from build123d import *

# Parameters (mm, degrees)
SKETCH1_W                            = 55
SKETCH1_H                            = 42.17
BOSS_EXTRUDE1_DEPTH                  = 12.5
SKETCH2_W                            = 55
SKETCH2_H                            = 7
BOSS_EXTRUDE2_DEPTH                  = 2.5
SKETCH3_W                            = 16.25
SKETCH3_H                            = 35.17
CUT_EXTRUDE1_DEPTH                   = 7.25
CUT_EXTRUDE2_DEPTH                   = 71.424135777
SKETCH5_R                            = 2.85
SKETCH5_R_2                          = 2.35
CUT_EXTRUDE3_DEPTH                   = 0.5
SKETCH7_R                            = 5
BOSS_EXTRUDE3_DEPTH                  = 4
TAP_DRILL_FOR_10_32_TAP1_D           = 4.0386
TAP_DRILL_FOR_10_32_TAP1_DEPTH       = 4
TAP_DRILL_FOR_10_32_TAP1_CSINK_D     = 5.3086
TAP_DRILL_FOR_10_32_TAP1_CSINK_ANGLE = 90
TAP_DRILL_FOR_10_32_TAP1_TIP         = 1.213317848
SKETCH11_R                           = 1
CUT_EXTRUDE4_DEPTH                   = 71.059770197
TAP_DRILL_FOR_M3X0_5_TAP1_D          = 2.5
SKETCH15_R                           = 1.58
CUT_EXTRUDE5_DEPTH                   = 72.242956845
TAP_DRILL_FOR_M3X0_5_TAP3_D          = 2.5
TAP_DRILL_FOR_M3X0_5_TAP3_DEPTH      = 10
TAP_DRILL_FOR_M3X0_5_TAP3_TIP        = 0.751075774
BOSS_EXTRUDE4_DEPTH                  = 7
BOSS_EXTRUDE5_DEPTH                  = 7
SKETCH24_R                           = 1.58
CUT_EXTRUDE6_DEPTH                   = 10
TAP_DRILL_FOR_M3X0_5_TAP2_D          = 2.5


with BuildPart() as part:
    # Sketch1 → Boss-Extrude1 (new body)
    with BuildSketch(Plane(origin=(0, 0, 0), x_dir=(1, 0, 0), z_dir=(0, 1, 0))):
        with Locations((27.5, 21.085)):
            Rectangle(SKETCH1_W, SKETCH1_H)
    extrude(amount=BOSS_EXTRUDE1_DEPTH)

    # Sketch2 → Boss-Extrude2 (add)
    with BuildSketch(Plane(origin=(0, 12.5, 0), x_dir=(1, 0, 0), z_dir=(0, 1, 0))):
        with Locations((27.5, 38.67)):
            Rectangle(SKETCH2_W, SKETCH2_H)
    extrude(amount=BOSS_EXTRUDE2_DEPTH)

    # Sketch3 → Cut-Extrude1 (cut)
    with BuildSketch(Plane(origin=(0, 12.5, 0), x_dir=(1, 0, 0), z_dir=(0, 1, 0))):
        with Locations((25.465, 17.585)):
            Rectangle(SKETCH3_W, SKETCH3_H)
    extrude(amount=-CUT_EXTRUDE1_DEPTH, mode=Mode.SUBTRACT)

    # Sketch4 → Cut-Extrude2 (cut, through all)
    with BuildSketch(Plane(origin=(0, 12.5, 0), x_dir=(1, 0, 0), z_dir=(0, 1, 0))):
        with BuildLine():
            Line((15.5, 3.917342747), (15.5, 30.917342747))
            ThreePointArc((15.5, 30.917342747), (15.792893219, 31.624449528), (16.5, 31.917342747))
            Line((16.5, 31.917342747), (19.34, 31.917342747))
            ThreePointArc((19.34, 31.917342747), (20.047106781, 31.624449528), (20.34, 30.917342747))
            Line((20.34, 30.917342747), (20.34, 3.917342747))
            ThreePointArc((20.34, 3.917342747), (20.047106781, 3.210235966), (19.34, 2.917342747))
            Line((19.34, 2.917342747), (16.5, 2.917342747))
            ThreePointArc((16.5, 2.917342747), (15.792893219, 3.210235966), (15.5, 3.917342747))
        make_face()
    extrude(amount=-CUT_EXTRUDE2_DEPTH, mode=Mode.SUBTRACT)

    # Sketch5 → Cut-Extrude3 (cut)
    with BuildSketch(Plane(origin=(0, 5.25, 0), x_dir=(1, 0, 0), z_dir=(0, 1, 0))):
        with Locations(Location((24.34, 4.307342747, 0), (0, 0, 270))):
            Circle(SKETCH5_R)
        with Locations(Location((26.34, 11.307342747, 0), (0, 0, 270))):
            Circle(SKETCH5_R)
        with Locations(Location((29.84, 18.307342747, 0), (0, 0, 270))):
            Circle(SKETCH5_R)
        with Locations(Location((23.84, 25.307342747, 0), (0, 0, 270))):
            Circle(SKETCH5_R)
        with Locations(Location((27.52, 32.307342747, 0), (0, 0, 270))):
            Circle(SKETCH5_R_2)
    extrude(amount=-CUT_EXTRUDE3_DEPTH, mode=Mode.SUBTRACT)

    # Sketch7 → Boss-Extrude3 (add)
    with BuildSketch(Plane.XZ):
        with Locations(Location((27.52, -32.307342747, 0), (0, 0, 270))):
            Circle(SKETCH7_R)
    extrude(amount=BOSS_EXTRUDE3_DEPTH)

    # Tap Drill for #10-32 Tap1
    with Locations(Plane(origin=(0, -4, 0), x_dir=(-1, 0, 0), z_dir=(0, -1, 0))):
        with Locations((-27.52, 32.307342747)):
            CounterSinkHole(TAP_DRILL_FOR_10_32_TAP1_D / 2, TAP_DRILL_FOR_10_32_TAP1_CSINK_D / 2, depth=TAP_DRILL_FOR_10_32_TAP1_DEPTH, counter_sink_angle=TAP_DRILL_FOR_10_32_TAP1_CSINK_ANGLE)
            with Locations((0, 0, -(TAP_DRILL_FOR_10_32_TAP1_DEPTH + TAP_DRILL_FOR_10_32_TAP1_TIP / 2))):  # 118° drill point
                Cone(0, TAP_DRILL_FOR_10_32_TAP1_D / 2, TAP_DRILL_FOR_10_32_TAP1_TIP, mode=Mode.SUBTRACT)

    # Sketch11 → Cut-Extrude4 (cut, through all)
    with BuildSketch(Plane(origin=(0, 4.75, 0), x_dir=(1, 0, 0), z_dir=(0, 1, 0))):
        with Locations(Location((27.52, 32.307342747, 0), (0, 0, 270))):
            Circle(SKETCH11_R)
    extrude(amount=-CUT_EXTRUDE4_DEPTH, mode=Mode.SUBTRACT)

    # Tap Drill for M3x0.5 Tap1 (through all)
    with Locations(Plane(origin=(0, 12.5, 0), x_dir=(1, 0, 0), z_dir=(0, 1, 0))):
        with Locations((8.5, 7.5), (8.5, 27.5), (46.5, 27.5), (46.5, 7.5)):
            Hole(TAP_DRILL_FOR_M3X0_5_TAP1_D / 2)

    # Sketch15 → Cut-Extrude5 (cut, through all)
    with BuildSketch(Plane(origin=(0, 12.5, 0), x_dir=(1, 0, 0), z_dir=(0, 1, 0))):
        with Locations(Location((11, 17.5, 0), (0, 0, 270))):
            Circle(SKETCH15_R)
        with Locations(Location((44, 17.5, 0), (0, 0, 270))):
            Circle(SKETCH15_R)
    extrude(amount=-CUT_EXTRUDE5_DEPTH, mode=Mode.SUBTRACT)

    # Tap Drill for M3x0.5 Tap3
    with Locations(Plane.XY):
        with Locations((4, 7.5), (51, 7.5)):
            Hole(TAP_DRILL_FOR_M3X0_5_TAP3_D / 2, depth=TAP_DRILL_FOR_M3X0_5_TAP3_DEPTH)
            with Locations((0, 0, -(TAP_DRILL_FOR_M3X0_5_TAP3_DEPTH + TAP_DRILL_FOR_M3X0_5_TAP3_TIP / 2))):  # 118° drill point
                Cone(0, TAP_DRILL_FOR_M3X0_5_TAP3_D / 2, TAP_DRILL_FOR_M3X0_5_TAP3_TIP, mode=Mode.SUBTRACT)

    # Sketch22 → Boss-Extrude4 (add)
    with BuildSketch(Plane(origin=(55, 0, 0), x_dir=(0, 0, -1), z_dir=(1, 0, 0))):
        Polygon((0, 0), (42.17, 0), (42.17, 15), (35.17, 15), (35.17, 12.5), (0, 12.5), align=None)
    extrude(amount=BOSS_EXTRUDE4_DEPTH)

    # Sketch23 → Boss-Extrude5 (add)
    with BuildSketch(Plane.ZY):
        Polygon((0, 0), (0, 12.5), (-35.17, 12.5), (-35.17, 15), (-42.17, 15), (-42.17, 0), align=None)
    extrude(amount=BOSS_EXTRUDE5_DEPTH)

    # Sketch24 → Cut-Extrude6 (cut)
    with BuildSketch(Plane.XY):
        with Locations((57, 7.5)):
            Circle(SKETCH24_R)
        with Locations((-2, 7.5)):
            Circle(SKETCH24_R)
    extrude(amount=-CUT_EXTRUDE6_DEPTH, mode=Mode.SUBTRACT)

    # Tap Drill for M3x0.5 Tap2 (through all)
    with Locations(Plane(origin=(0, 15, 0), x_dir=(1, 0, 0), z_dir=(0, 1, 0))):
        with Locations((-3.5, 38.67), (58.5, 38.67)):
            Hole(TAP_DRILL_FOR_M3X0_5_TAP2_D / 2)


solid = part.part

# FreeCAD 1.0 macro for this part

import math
import FreeCAD as App
import Part
import Sketcher

V = App.Vector
Q = App.Units.Quantity


def add_polygon(sketch, points):
    """Adds a closed chain of lines whose ends are joined by coincident constraints."""
    first, n = sketch.GeometryCount, len(points)
    for a, b in zip(points, points[1:] + points[:1]):
        sketch.addGeometry(Part.LineSegment(App.Vector(*a, 0), App.Vector(*b, 0)), False)
    for i in range(n):
        sketch.addConstraint(Sketcher.Constraint("Coincident", first + i, 2, first + (i + 1) % n, 1))

doc = App.newDocument("Part")
body = doc.addObject("PartDesign::Body", "Body")

# Sketch on XZ plane
sketch1 = body.newObject("Sketcher::SketchObject", "Sketch")
sketch1.AttachmentSupport = (doc.getObject("XZ_Plane"), [""])
sketch1.MapMode = "FlatFace"
add_polygon(sketch1, [(0, -42.17), (0, 0), (55, 0), (55, -42.17)])  # lines 0-3
sketch1.addConstraint(Sketcher.Constraint("Vertical", 0))
sketch1.addConstraint(Sketcher.Constraint("Horizontal", 1))
sketch1.addConstraint(Sketcher.Constraint("Vertical", 2))
sketch1.addConstraint(Sketcher.Constraint("Horizontal", 3))
sketch1.addConstraint(Sketcher.Constraint("Coincident", 0, 2, -1, 1))
sketch1.addConstraint(Sketcher.Constraint("DistanceX", 1, 1, 1, 2, Q("55 mm")))
sketch1.addConstraint(Sketcher.Constraint("DistanceY", 0, 1, 0, 2, Q("42.17 mm")))
pad1 = body.newObject("PartDesign::Pad", "Pad")
pad1.Profile = sketch1
pad1.Length = 12.5
pad1.Reversed = True

# Sketch on XZ plane
sketch2 = body.newObject("Sketcher::SketchObject", "Sketch001")
sketch2.AttachmentSupport = (doc.getObject("XZ_Plane"), [""])
sketch2.MapMode = "FlatFace"
sketch2.AttachmentOffset = App.Placement(V(0, 0, -12.5), App.Rotation())
add_polygon(sketch2, [(0, -42.17), (0, -35.17), (55, -35.17), (55, -42.17)])  # lines 0-3
sketch2.addConstraint(Sketcher.Constraint("Vertical", 0))
sketch2.addConstraint(Sketcher.Constraint("Horizontal", 1))
sketch2.addConstraint(Sketcher.Constraint("Vertical", 2))
sketch2.addConstraint(Sketcher.Constraint("Horizontal", 3))
sketch2.addConstraint(Sketcher.Constraint("PointOnObject", 0, 2, -2))
sketch2.addConstraint(Sketcher.Constraint("DistanceX", 1, 1, 1, 2, Q("55 mm")))
sketch2.addConstraint(Sketcher.Constraint("DistanceY", 0, 1, 0, 2, Q("7 mm")))
sketch2.addConstraint(Sketcher.Constraint("DistanceY", 0, 2, -1, 1, Q("35.17 mm")))
pad2 = body.newObject("PartDesign::Pad", "Pad001")
pad2.Profile = sketch2
pad2.Length = 2.5
pad2.Reversed = True

# Sketch on XZ plane
sketch3 = body.newObject("Sketcher::SketchObject", "Sketch002")
sketch3.AttachmentSupport = (doc.getObject("XZ_Plane"), [""])
sketch3.MapMode = "FlatFace"
sketch3.AttachmentOffset = App.Placement(V(0, 0, -12.5), App.Rotation())
add_polygon(sketch3, [(17.34, -35.17), (17.34, 0), (33.59, 0), (33.59, -35.17)])  # lines 0-3
sketch3.addConstraint(Sketcher.Constraint("Vertical", 0))
sketch3.addConstraint(Sketcher.Constraint("Horizontal", 1))
sketch3.addConstraint(Sketcher.Constraint("Vertical", 2))
sketch3.addConstraint(Sketcher.Constraint("Horizontal", 3))
sketch3.addConstraint(Sketcher.Constraint("PointOnObject", 0, 2, -1))
sketch3.addConstraint(Sketcher.Constraint("DistanceX", 1, 1, 1, 2, Q("16.25 mm")))
sketch3.addConstraint(Sketcher.Constraint("DistanceY", 0, 1, 0, 2, Q("35.17 mm")))
sketch3.addConstraint(Sketcher.Constraint("DistanceX", -1, 1, 0, 2, Q("17.34 mm")))
pocket1 = body.newObject("PartDesign::Pocket", "Pocket")
pocket1.Profile = sketch3
pocket1.Length = 7.25
pocket1.Reversed = True

# Sketch on XZ plane
sketch4 = body.newObject("Sketcher::SketchObject", "Sketch003")
sketch4.AttachmentSupport = (doc.getObject("XZ_Plane"), [""])
sketch4.MapMode = "FlatFace"
sketch4.AttachmentOffset = App.Placement(V(0, 0, -12.5), App.Rotation())
sketch4.addGeometry(Part.LineSegment(V(15.5, -30.917343, 0), V(15.5, -3.917343, 0)), False)
sketch4.addGeometry(Part.ArcOfCircle(Part.Circle(V(16.5, -3.917343, 0), V(0, 0, 1), 1), math.radians(90), math.radians(180)), False)
sketch4.addGeometry(Part.LineSegment(V(16.5, -2.917343, 0), V(19.34, -2.917343, 0)), False)
sketch4.addGeometry(Part.ArcOfCircle(Part.Circle(V(19.34, -3.917343, 0), V(0, 0, 1), 1), math.radians(0), math.radians(90)), False)
sketch4.addGeometry(Part.LineSegment(V(20.34, -3.917343, 0), V(20.34, -30.917343, 0)), False)
sketch4.addGeometry(Part.ArcOfCircle(Part.Circle(V(19.34, -30.917343, 0), V(0, 0, 1), 1), math.radians(-90), math.radians(0)), False)
sketch4.addGeometry(Part.LineSegment(V(19.34, -31.917343, 0), V(16.5, -31.917343, 0)), False)
sketch4.addGeometry(Part.ArcOfCircle(Part.Circle(V(16.5, -30.917343, 0), V(0, 0, 1), 1), math.radians(-180), math.radians(-90)), False)
sketch4.addConstraint(Sketcher.Constraint("Tangent", 0, 2, 1, 2))
sketch4.addConstraint(Sketcher.Constraint("Tangent", 1, 1, 2, 1))
sketch4.addConstraint(Sketcher.Constraint("Tangent", 2, 2, 3, 2))
sketch4.addConstraint(Sketcher.Constraint("Tangent", 3, 1, 4, 1))
sketch4.addConstraint(Sketcher.Constraint("Tangent", 4, 2, 5, 2))
sketch4.addConstraint(Sketcher.Constraint("Tangent", 5, 1, 6, 1))
sketch4.addConstraint(Sketcher.Constraint("Tangent", 6, 2, 7, 2))
sketch4.addConstraint(Sketcher.Constraint("Tangent", 7, 1, 0, 1))
sketch4.addConstraint(Sketcher.Constraint("Vertical", 0))
sketch4.addConstraint(Sketcher.Constraint("Horizontal", 2))
sketch4.addConstraint(Sketcher.Constraint("Vertical", 4))
sketch4.addConstraint(Sketcher.Constraint("Horizontal", 6))
sketch4.addConstraint(Sketcher.Constraint("Equal", 1, 3))
sketch4.addConstraint(Sketcher.Constraint("Equal", 3, 5))
sketch4.addConstraint(Sketcher.Constraint("Equal", 5, 7))
sketch4.addConstraint(Sketcher.Constraint("Radius", 1, Q("1 mm")))
sketch4.addConstraint(Sketcher.Constraint("DistanceY", 0, 1, 0, 2, Q("27 mm")))
sketch4.addConstraint(Sketcher.Constraint("DistanceX", 2, 1, 2, 2, Q("2.84 mm")))
sketch4.addConstraint(Sketcher.Constraint("DistanceX", -1, 1, 1, 3, Q("16.5 mm")))
sketch4.addConstraint(Sketcher.Constraint("DistanceY", 1, 3, -1, 1, Q("3.917343 mm")))
pocket2 = body.newObject("PartDesign::Pocket", "Pocket001")
pocket2.Profile = sketch4
pocket2.Type = "ThroughAll"
pocket2.Reversed = True

# Sketch on XZ plane
sketch5 = body.newObject("Sketcher::SketchObject", "Sketch004")
sketch5.AttachmentSupport = (doc.getObject("XZ_Plane"), [""])
sketch5.MapMode = "FlatFace"
sketch5.AttachmentOffset = App.Placement(V(0, 0, -5.25), App.Rotation())
sketch5.addGeometry(Part.Circle(V(24.34, -4.307343, 0), V(0, 0, 1), 2.85), False)
sketch5.addGeometry(Part.Circle(V(26.34, -11.307343, 0), V(0, 0, 1), 2.85), False)
sketch5.addGeometry(Part.Circle(V(29.84, -18.307343, 0), V(0, 0, 1), 2.85), False)
sketch5.addGeometry(Part.Circle(V(23.84, -25.307343, 0), V(0, 0, 1), 2.85), False)
sketch5.addGeometry(Part.Circle(V(27.52, -32.307343, 0), V(0, 0, 1), 2.35), False)
sketch5.addConstraint(Sketcher.Constraint("Equal", 0, 1))
sketch5.addConstraint(Sketcher.Constraint("Equal", 1, 2))
sketch5.addConstraint(Sketcher.Constraint("Equal", 2, 3))
sketch5.addConstraint(Sketcher.Constraint("Diameter", 0, Q("5.7 mm")))
sketch5.addConstraint(Sketcher.Constraint("Diameter", 4, Q("4.7 mm")))
sketch5.addConstraint(Sketcher.Constraint("DistanceX", 0, 3, 1, 3, Q("2 mm")))
sketch5.addConstraint(Sketcher.Constraint("DistanceY", 1, 3, 0, 3, Q("7 mm")))
sketch5.addConstraint(Sketcher.Constraint("DistanceY", 2, 3, 1, 3, Q("7 mm")))
sketch5.addConstraint(Sketcher.Constraint("DistanceX", 3, 3, 2, 3, Q("6 mm")))
sketch5.addConstraint(Sketcher.Constraint("DistanceY", 3, 3, 2, 3, Q("7 mm")))
sketch5.addConstraint(Sketcher.Constraint("DistanceY", 4, 3, 3, 3, Q("7 mm")))
sketch5.addConstraint(Sketcher.Constraint("DistanceX", 1, 3, 2, 3, Q("3.5 mm")))
sketch5.addConstraint(Sketcher.Constraint("DistanceX", -1, 1, 0, 3, Q("24.34 mm")))
sketch5.addConstraint(Sketcher.Constraint("DistanceX", -1, 1, 4, 3, Q("27.52 mm")))
sketch5.addConstraint(Sketcher.Constraint("DistanceY", 0, 3, -1, 1, Q("4.307343 mm")))
pocket3 = body.newObject("PartDesign::Pocket", "Pocket002")
pocket3.Profile = sketch5
pocket3.Length = 0.5
pocket3.Reversed = True

# Sketch on XZ plane
sketch6 = body.newObject("Sketcher::SketchObject", "Sketch005")
sketch6.AttachmentSupport = (doc.getObject("XZ_Plane"), [""])
sketch6.MapMode = "FlatFace"
sketch6.addGeometry(Part.Circle(V(27.52, -32.307343, 0), V(0, 0, 1), 5), False)
sketch6.addConstraint(Sketcher.Constraint("Diameter", 0, Q("10 mm")))
sketch6.addConstraint(Sketcher.Constraint("DistanceX", -1, 1, 0, 3, Q("27.52 mm")))
sketch6.addConstraint(Sketcher.Constraint("DistanceY", 0, 3, -1, 1, Q("32.307343 mm")))
pad3 = body.newObject("PartDesign::Pad", "Pad002")
pad3.Profile = sketch6
pad3.Length = 4

# Sketch on XZ plane
sketch7 = body.newObject("Sketcher::SketchObject", "Sketch006")
sketch7.AttachmentSupport = (doc.getObject("XZ_Plane"), [""])
sketch7.MapMode = "FlatFace"
sketch7.AttachmentOffset = App.Placement(V(0, 0, 4), App.Rotation())
sketch7.addGeometry(Part.Circle(V(27.52, -32.307343, 0), V(0, 0, 1), 2.0193), False)
sketch7.addConstraint(Sketcher.Constraint("Diameter", 0, Q("4.0386 mm")))
sketch7.addConstraint(Sketcher.Constraint("DistanceX", -1, 1, 0, 3, Q("27.52 mm")))
sketch7.addConstraint(Sketcher.Constraint("DistanceY", 0, 3, -1, 1, Q("32.307343 mm")))
doc.recompute()
hole = body.newObject("PartDesign::Hole", "Hole")
hole.Profile = sketch7
hole.ThreadType = "None"
hole.Diameter = 4.0386
hole.DepthType = "Dimension"
hole.Depth = 4
hole.DrillPoint = "Angled"
hole.DrillPointAngle = 118
hole.HoleCutType = "Countersink"
hole.HoleCutDiameter = 5.3086
hole.HoleCutCountersinkAngle = 90

# Sketch on XZ plane
sketch8 = body.newObject("Sketcher::SketchObject", "Sketch007")
sketch8.AttachmentSupport = (doc.getObject("XZ_Plane"), [""])
sketch8.MapMode = "FlatFace"
sketch8.AttachmentOffset = App.Placement(V(0, 0, -4.75), App.Rotation())
sketch8.addGeometry(Part.Circle(V(27.52, -32.307343, 0), V(0, 0, 1), 1), False)
sketch8.addConstraint(Sketcher.Constraint("Diameter", 0, Q("2 mm")))
sketch8.addConstraint(Sketcher.Constraint("DistanceX", -1, 1, 0, 3, Q("27.52 mm")))
sketch8.addConstraint(Sketcher.Constraint("DistanceY", 0, 3, -1, 1, Q("32.307343 mm")))
pocket4 = body.newObject("PartDesign::Pocket", "Pocket003")
pocket4.Profile = sketch8
pocket4.Type = "ThroughAll"
pocket4.Reversed = True

# Sketch on XZ plane
sketch9 = body.newObject("Sketcher::SketchObject", "Sketch008")
sketch9.AttachmentSupport = (doc.getObject("XZ_Plane"), [""])
sketch9.MapMode = "FlatFace"
sketch9.AttachmentOffset = App.Placement(V(0, 0, -12.5), App.Rotation())
sketch9.addGeometry(Part.Circle(V(8.5, -7.5, 0), V(0, 0, 1), 1.25), False)
sketch9.addGeometry(Part.Circle(V(8.5, -27.5, 0), V(0, 0, 1), 1.25), False)
sketch9.addGeometry(Part.Circle(V(46.5, -27.5, 0), V(0, 0, 1), 1.25), False)
sketch9.addGeometry(Part.Circle(V(46.5, -7.5, 0), V(0, 0, 1), 1.25), False)
sketch9.addConstraint(Sketcher.Constraint("Equal", 0, 1))
sketch9.addConstraint(Sketcher.Constraint("Equal", 1, 2))
sketch9.addConstraint(Sketcher.Constraint("Equal", 2, 3))
sketch9.addConstraint(Sketcher.Constraint("Horizontal", 1, 3, 2, 3))
sketch9.addConstraint(Sketcher.Constraint("Horizontal", 0, 3, 3, 3))
sketch9.addConstraint(Sketcher.Constraint("Vertical", 0, 3, 1, 3))
sketch9.addConstraint(Sketcher.Constraint("Vertical", 2, 3, 3, 3))
sketch9.addConstraint(Sketcher.Constraint("Diameter", 0, Q("2.5 mm")))
sketch9.addConstraint(Sketcher.Constraint("DistanceY", 1, 3, 0, 3, Q("20 mm")))
sketch9.addConstraint(Sketcher.Constraint("DistanceX", 1, 3, 2, 3, Q("38 mm")))
sketch9.addConstraint(Sketcher.Constraint("DistanceX", -1, 1, 0, 3, Q("8.5 mm")))
sketch9.addConstraint(Sketcher.Constraint("DistanceY", 0, 3, -1, 1, Q("7.5 mm")))
doc.recompute()
hole2 = body.newObject("PartDesign::Hole", "Hole001")
hole2.Profile = sketch9
hole2.ThreadType = "None"
hole2.Diameter = 2.5
hole2.DepthType = "ThroughAll"
hole2.Reversed = True

# Sketch on XZ plane
sketch10 = body.newObject("Sketcher::SketchObject", "Sketch009")
sketch10.AttachmentSupport = (doc.getObject("XZ_Plane"), [""])
sketch10.MapMode = "FlatFace"
sketch10.AttachmentOffset = App.Placement(V(0, 0, -12.5), App.Rotation())
sketch10.addGeometry(Part.Circle(V(11, -17.5, 0), V(0, 0, 1), 1.58), False)
sketch10.addGeometry(Part.Circle(V(44, -17.5, 0), V(0, 0, 1), 1.58), False)
sketch10.addConstraint(Sketcher.Constraint("Equal", 0, 1))
sketch10.addConstraint(Sketcher.Constraint("Horizontal", 0, 3, 1, 3))
sketch10.addConstraint(Sketcher.Constraint("Diameter", 0, Q("3.16 mm")))
sketch10.addConstraint(Sketcher.Constraint("DistanceX", -1, 1, 0, 3, Q("11 mm")))
sketch10.addConstraint(Sketcher.Constraint("DistanceX", -1, 1, 1, 3, Q("44 mm")))
sketch10.addConstraint(Sketcher.Constraint("DistanceY", 0, 3, -1, 1, Q("17.5 mm")))
pocket5 = body.newObject("PartDesign::Pocket", "Pocket004")
pocket5.Profile = sketch10
pocket5.Type = "ThroughAll"
pocket5.Reversed = True

# Sketch on XY plane
sketch11 = body.newObject("Sketcher::SketchObject", "Sketch010")
sketch11.AttachmentSupport = (doc.getObject("XY_Plane"), [""])
sketch11.MapMode = "FlatFace"
sketch11.addGeometry(Part.Circle(V(4, 7.5, 0), V(0, 0, 1), 1.25), False)
sketch11.addGeometry(Part.Circle(V(51, 7.5, 0), V(0, 0, 1), 1.25), False)
sketch11.addConstraint(Sketcher.Constraint("Equal", 0, 1))
sketch11.addConstraint(Sketcher.Constraint("Horizontal", 0, 3, 1, 3))
sketch11.addConstraint(Sketcher.Constraint("Diameter", 0, Q("2.5 mm")))
sketch11.addConstraint(Sketcher.Constraint("DistanceX", -1, 1, 0, 3, Q("4 mm")))
sketch11.addConstraint(Sketcher.Constraint("DistanceX", -1, 1, 1, 3, Q("51 mm")))
sketch11.addConstraint(Sketcher.Constraint("DistanceY", -1, 1, 0, 3, Q("7.5 mm")))
doc.recompute()
hole3 = body.newObject("PartDesign::Hole", "Hole002")
hole3.Profile = sketch11
hole3.ThreadType = "None"
hole3.Diameter = 2.5
hole3.DepthType = "Dimension"
hole3.Depth = 10
hole3.DrillPoint = "Angled"
hole3.DrillPointAngle = 118

# Sketch on YZ plane
sketch12 = body.newObject("Sketcher::SketchObject", "Sketch011")
sketch12.AttachmentSupport = (doc.getObject("YZ_Plane"), [""])
sketch12.MapMode = "FlatFace"
sketch12.AttachmentOffset = App.Placement(V(0, 0, 55), App.Rotation())
add_polygon(sketch12, [(0, 0), (0, -42.17), (15, -42.17), (15, -35.17), (12.5, -35.17), (12.5, 0)])  # lines 0-5
sketch12.addConstraint(Sketcher.Constraint("Vertical", 0))
sketch12.addConstraint(Sketcher.Constraint("Horizontal", 1))
sketch12.addConstraint(Sketcher.Constraint("Vertical", 2))
sketch12.addConstraint(Sketcher.Constraint("Horizontal", 3))
sketch12.addConstraint(Sketcher.Constraint("Vertical", 4))
sketch12.addConstraint(Sketcher.Constraint("Horizontal", 5))
sketch12.addConstraint(Sketcher.Constraint("Coincident", 5, 2, -1, 1))
sketch12.addConstraint(Sketcher.Constraint("DistanceX", 1, 1, 1, 2, Q("15 mm")))
sketch12.addConstraint(Sketcher.Constraint("DistanceY", 2, 1, 2, 2, Q("7 mm")))
sketch12.addConstraint(Sketcher.Constraint("DistanceX", 3, 2, 3, 1, Q("2.5 mm")))
sketch12.addConstraint(Sketcher.Constraint("DistanceY", 0, 2, 0, 1, Q("42.17 mm")))
pad4 = body.newObject("PartDesign::Pad", "Pad003")
pad4.Profile = sketch12
pad4.Length = 7

# Sketch on YZ plane
sketch13 = body.newObject("Sketcher::SketchObject", "Sketch012")
sketch13.AttachmentSupport = (doc.getObject("YZ_Plane"), [""])
sketch13.MapMode = "FlatFace"
add_polygon(sketch13, [(0, 0), (12.5, 0), (12.5, -35.17), (15, -35.17), (15, -42.17), (0, -42.17)])  # lines 0-5
sketch13.addConstraint(Sketcher.Constraint("Horizontal", 0))
sketch13.addConstraint(Sketcher.Constraint("Vertical", 1))
sketch13.addConstraint(Sketcher.Constraint("Horizontal", 2))
sketch13.addConstraint(Sketcher.Constraint("Vertical", 3))
sketch13.addConstraint(Sketcher.Constraint("Horizontal", 4))
sketch13.addConstraint(Sketcher.Constraint("Vertical", 5))
sketch13.addConstraint(Sketcher.Constraint("Coincident", 5, 2, -1, 1))
sketch13.addConstraint(Sketcher.Constraint("DistanceX", 4, 2, 4, 1, Q("15 mm")))
sketch13.addConstraint(Sketcher.Constraint("DistanceY", 3, 2, 3, 1, Q("7 mm")))
sketch13.addConstraint(Sketcher.Constraint("DistanceX", 0, 1, 0, 2, Q("12.5 mm")))
sketch13.addConstraint(Sketcher.Constraint("DistanceY", 1, 2, 1, 1, Q("35.17 mm")))
pad5 = body.newObject("PartDesign::Pad", "Pad004")
pad5.Profile = sketch13
pad5.Length = 7
pad5.Reversed = True

# Sketch on XY plane
sketch14 = body.newObject("Sketcher::SketchObject", "Sketch013")
sketch14.AttachmentSupport = (doc.getObject("XY_Plane"), [""])
sketch14.MapMode = "FlatFace"
sketch14.addGeometry(Part.Circle(V(57, 7.5, 0), V(0, 0, 1), 1.58), False)
sketch14.addGeometry(Part.Circle(V(-2, 7.5, 0), V(0, 0, 1), 1.58), False)
sketch14.addConstraint(Sketcher.Constraint("Equal", 0, 1))
sketch14.addConstraint(Sketcher.Constraint("Horizontal", 0, 3, 1, 3))
sketch14.addConstraint(Sketcher.Constraint("Diameter", 0, Q("3.16 mm")))
sketch14.addConstraint(Sketcher.Constraint("DistanceX", -1, 1, 0, 3, Q("57 mm")))
sketch14.addConstraint(Sketcher.Constraint("DistanceX", 1, 3, -1, 1, Q("2 mm")))
sketch14.addConstraint(Sketcher.Constraint("DistanceY", -1, 1, 0, 3, Q("7.5 mm")))
pocket6 = body.newObject("PartDesign::Pocket", "Pocket005")
pocket6.Profile = sketch14
pocket6.Length = 10

# Sketch on XZ plane
sketch15 = body.newObject("Sketcher::SketchObject", "Sketch014")
sketch15.AttachmentSupport = (doc.getObject("XZ_Plane"), [""])
sketch15.MapMode = "FlatFace"
sketch15.AttachmentOffset = App.Placement(V(0, 0, -15), App.Rotation())
sketch15.addGeometry(Part.Circle(V(-3.5, -38.67, 0), V(0, 0, 1), 1.25), False)
sketch15.addGeometry(Part.Circle(V(58.5, -38.67, 0), V(0, 0, 1), 1.25), False)
sketch15.addConstraint(Sketcher.Constraint("Equal", 0, 1))
sketch15.addConstraint(Sketcher.Constraint("Horizontal", 0, 3, 1, 3))
sketch15.addConstraint(Sketcher.Constraint("Diameter", 0, Q("2.5 mm")))
sketch15.addConstraint(Sketcher.Constraint("DistanceX", 0, 3, 1, 3, Q("62 mm")))
sketch15.addConstraint(Sketcher.Constraint("DistanceX", 0, 3, -1, 1, Q("3.5 mm")))
sketch15.addConstraint(Sketcher.Constraint("DistanceY", 0, 3, -1, 1, Q("38.67 mm")))
doc.recompute()
hole4 = body.newObject("PartDesign::Hole", "Hole003")
hole4.Profile = sketch15
hole4.ThreadType = "None"
hole4.Diameter = 2.5
hole4.DepthType = "ThroughAll"
hole4.Reversed = True

doc.recompute()
